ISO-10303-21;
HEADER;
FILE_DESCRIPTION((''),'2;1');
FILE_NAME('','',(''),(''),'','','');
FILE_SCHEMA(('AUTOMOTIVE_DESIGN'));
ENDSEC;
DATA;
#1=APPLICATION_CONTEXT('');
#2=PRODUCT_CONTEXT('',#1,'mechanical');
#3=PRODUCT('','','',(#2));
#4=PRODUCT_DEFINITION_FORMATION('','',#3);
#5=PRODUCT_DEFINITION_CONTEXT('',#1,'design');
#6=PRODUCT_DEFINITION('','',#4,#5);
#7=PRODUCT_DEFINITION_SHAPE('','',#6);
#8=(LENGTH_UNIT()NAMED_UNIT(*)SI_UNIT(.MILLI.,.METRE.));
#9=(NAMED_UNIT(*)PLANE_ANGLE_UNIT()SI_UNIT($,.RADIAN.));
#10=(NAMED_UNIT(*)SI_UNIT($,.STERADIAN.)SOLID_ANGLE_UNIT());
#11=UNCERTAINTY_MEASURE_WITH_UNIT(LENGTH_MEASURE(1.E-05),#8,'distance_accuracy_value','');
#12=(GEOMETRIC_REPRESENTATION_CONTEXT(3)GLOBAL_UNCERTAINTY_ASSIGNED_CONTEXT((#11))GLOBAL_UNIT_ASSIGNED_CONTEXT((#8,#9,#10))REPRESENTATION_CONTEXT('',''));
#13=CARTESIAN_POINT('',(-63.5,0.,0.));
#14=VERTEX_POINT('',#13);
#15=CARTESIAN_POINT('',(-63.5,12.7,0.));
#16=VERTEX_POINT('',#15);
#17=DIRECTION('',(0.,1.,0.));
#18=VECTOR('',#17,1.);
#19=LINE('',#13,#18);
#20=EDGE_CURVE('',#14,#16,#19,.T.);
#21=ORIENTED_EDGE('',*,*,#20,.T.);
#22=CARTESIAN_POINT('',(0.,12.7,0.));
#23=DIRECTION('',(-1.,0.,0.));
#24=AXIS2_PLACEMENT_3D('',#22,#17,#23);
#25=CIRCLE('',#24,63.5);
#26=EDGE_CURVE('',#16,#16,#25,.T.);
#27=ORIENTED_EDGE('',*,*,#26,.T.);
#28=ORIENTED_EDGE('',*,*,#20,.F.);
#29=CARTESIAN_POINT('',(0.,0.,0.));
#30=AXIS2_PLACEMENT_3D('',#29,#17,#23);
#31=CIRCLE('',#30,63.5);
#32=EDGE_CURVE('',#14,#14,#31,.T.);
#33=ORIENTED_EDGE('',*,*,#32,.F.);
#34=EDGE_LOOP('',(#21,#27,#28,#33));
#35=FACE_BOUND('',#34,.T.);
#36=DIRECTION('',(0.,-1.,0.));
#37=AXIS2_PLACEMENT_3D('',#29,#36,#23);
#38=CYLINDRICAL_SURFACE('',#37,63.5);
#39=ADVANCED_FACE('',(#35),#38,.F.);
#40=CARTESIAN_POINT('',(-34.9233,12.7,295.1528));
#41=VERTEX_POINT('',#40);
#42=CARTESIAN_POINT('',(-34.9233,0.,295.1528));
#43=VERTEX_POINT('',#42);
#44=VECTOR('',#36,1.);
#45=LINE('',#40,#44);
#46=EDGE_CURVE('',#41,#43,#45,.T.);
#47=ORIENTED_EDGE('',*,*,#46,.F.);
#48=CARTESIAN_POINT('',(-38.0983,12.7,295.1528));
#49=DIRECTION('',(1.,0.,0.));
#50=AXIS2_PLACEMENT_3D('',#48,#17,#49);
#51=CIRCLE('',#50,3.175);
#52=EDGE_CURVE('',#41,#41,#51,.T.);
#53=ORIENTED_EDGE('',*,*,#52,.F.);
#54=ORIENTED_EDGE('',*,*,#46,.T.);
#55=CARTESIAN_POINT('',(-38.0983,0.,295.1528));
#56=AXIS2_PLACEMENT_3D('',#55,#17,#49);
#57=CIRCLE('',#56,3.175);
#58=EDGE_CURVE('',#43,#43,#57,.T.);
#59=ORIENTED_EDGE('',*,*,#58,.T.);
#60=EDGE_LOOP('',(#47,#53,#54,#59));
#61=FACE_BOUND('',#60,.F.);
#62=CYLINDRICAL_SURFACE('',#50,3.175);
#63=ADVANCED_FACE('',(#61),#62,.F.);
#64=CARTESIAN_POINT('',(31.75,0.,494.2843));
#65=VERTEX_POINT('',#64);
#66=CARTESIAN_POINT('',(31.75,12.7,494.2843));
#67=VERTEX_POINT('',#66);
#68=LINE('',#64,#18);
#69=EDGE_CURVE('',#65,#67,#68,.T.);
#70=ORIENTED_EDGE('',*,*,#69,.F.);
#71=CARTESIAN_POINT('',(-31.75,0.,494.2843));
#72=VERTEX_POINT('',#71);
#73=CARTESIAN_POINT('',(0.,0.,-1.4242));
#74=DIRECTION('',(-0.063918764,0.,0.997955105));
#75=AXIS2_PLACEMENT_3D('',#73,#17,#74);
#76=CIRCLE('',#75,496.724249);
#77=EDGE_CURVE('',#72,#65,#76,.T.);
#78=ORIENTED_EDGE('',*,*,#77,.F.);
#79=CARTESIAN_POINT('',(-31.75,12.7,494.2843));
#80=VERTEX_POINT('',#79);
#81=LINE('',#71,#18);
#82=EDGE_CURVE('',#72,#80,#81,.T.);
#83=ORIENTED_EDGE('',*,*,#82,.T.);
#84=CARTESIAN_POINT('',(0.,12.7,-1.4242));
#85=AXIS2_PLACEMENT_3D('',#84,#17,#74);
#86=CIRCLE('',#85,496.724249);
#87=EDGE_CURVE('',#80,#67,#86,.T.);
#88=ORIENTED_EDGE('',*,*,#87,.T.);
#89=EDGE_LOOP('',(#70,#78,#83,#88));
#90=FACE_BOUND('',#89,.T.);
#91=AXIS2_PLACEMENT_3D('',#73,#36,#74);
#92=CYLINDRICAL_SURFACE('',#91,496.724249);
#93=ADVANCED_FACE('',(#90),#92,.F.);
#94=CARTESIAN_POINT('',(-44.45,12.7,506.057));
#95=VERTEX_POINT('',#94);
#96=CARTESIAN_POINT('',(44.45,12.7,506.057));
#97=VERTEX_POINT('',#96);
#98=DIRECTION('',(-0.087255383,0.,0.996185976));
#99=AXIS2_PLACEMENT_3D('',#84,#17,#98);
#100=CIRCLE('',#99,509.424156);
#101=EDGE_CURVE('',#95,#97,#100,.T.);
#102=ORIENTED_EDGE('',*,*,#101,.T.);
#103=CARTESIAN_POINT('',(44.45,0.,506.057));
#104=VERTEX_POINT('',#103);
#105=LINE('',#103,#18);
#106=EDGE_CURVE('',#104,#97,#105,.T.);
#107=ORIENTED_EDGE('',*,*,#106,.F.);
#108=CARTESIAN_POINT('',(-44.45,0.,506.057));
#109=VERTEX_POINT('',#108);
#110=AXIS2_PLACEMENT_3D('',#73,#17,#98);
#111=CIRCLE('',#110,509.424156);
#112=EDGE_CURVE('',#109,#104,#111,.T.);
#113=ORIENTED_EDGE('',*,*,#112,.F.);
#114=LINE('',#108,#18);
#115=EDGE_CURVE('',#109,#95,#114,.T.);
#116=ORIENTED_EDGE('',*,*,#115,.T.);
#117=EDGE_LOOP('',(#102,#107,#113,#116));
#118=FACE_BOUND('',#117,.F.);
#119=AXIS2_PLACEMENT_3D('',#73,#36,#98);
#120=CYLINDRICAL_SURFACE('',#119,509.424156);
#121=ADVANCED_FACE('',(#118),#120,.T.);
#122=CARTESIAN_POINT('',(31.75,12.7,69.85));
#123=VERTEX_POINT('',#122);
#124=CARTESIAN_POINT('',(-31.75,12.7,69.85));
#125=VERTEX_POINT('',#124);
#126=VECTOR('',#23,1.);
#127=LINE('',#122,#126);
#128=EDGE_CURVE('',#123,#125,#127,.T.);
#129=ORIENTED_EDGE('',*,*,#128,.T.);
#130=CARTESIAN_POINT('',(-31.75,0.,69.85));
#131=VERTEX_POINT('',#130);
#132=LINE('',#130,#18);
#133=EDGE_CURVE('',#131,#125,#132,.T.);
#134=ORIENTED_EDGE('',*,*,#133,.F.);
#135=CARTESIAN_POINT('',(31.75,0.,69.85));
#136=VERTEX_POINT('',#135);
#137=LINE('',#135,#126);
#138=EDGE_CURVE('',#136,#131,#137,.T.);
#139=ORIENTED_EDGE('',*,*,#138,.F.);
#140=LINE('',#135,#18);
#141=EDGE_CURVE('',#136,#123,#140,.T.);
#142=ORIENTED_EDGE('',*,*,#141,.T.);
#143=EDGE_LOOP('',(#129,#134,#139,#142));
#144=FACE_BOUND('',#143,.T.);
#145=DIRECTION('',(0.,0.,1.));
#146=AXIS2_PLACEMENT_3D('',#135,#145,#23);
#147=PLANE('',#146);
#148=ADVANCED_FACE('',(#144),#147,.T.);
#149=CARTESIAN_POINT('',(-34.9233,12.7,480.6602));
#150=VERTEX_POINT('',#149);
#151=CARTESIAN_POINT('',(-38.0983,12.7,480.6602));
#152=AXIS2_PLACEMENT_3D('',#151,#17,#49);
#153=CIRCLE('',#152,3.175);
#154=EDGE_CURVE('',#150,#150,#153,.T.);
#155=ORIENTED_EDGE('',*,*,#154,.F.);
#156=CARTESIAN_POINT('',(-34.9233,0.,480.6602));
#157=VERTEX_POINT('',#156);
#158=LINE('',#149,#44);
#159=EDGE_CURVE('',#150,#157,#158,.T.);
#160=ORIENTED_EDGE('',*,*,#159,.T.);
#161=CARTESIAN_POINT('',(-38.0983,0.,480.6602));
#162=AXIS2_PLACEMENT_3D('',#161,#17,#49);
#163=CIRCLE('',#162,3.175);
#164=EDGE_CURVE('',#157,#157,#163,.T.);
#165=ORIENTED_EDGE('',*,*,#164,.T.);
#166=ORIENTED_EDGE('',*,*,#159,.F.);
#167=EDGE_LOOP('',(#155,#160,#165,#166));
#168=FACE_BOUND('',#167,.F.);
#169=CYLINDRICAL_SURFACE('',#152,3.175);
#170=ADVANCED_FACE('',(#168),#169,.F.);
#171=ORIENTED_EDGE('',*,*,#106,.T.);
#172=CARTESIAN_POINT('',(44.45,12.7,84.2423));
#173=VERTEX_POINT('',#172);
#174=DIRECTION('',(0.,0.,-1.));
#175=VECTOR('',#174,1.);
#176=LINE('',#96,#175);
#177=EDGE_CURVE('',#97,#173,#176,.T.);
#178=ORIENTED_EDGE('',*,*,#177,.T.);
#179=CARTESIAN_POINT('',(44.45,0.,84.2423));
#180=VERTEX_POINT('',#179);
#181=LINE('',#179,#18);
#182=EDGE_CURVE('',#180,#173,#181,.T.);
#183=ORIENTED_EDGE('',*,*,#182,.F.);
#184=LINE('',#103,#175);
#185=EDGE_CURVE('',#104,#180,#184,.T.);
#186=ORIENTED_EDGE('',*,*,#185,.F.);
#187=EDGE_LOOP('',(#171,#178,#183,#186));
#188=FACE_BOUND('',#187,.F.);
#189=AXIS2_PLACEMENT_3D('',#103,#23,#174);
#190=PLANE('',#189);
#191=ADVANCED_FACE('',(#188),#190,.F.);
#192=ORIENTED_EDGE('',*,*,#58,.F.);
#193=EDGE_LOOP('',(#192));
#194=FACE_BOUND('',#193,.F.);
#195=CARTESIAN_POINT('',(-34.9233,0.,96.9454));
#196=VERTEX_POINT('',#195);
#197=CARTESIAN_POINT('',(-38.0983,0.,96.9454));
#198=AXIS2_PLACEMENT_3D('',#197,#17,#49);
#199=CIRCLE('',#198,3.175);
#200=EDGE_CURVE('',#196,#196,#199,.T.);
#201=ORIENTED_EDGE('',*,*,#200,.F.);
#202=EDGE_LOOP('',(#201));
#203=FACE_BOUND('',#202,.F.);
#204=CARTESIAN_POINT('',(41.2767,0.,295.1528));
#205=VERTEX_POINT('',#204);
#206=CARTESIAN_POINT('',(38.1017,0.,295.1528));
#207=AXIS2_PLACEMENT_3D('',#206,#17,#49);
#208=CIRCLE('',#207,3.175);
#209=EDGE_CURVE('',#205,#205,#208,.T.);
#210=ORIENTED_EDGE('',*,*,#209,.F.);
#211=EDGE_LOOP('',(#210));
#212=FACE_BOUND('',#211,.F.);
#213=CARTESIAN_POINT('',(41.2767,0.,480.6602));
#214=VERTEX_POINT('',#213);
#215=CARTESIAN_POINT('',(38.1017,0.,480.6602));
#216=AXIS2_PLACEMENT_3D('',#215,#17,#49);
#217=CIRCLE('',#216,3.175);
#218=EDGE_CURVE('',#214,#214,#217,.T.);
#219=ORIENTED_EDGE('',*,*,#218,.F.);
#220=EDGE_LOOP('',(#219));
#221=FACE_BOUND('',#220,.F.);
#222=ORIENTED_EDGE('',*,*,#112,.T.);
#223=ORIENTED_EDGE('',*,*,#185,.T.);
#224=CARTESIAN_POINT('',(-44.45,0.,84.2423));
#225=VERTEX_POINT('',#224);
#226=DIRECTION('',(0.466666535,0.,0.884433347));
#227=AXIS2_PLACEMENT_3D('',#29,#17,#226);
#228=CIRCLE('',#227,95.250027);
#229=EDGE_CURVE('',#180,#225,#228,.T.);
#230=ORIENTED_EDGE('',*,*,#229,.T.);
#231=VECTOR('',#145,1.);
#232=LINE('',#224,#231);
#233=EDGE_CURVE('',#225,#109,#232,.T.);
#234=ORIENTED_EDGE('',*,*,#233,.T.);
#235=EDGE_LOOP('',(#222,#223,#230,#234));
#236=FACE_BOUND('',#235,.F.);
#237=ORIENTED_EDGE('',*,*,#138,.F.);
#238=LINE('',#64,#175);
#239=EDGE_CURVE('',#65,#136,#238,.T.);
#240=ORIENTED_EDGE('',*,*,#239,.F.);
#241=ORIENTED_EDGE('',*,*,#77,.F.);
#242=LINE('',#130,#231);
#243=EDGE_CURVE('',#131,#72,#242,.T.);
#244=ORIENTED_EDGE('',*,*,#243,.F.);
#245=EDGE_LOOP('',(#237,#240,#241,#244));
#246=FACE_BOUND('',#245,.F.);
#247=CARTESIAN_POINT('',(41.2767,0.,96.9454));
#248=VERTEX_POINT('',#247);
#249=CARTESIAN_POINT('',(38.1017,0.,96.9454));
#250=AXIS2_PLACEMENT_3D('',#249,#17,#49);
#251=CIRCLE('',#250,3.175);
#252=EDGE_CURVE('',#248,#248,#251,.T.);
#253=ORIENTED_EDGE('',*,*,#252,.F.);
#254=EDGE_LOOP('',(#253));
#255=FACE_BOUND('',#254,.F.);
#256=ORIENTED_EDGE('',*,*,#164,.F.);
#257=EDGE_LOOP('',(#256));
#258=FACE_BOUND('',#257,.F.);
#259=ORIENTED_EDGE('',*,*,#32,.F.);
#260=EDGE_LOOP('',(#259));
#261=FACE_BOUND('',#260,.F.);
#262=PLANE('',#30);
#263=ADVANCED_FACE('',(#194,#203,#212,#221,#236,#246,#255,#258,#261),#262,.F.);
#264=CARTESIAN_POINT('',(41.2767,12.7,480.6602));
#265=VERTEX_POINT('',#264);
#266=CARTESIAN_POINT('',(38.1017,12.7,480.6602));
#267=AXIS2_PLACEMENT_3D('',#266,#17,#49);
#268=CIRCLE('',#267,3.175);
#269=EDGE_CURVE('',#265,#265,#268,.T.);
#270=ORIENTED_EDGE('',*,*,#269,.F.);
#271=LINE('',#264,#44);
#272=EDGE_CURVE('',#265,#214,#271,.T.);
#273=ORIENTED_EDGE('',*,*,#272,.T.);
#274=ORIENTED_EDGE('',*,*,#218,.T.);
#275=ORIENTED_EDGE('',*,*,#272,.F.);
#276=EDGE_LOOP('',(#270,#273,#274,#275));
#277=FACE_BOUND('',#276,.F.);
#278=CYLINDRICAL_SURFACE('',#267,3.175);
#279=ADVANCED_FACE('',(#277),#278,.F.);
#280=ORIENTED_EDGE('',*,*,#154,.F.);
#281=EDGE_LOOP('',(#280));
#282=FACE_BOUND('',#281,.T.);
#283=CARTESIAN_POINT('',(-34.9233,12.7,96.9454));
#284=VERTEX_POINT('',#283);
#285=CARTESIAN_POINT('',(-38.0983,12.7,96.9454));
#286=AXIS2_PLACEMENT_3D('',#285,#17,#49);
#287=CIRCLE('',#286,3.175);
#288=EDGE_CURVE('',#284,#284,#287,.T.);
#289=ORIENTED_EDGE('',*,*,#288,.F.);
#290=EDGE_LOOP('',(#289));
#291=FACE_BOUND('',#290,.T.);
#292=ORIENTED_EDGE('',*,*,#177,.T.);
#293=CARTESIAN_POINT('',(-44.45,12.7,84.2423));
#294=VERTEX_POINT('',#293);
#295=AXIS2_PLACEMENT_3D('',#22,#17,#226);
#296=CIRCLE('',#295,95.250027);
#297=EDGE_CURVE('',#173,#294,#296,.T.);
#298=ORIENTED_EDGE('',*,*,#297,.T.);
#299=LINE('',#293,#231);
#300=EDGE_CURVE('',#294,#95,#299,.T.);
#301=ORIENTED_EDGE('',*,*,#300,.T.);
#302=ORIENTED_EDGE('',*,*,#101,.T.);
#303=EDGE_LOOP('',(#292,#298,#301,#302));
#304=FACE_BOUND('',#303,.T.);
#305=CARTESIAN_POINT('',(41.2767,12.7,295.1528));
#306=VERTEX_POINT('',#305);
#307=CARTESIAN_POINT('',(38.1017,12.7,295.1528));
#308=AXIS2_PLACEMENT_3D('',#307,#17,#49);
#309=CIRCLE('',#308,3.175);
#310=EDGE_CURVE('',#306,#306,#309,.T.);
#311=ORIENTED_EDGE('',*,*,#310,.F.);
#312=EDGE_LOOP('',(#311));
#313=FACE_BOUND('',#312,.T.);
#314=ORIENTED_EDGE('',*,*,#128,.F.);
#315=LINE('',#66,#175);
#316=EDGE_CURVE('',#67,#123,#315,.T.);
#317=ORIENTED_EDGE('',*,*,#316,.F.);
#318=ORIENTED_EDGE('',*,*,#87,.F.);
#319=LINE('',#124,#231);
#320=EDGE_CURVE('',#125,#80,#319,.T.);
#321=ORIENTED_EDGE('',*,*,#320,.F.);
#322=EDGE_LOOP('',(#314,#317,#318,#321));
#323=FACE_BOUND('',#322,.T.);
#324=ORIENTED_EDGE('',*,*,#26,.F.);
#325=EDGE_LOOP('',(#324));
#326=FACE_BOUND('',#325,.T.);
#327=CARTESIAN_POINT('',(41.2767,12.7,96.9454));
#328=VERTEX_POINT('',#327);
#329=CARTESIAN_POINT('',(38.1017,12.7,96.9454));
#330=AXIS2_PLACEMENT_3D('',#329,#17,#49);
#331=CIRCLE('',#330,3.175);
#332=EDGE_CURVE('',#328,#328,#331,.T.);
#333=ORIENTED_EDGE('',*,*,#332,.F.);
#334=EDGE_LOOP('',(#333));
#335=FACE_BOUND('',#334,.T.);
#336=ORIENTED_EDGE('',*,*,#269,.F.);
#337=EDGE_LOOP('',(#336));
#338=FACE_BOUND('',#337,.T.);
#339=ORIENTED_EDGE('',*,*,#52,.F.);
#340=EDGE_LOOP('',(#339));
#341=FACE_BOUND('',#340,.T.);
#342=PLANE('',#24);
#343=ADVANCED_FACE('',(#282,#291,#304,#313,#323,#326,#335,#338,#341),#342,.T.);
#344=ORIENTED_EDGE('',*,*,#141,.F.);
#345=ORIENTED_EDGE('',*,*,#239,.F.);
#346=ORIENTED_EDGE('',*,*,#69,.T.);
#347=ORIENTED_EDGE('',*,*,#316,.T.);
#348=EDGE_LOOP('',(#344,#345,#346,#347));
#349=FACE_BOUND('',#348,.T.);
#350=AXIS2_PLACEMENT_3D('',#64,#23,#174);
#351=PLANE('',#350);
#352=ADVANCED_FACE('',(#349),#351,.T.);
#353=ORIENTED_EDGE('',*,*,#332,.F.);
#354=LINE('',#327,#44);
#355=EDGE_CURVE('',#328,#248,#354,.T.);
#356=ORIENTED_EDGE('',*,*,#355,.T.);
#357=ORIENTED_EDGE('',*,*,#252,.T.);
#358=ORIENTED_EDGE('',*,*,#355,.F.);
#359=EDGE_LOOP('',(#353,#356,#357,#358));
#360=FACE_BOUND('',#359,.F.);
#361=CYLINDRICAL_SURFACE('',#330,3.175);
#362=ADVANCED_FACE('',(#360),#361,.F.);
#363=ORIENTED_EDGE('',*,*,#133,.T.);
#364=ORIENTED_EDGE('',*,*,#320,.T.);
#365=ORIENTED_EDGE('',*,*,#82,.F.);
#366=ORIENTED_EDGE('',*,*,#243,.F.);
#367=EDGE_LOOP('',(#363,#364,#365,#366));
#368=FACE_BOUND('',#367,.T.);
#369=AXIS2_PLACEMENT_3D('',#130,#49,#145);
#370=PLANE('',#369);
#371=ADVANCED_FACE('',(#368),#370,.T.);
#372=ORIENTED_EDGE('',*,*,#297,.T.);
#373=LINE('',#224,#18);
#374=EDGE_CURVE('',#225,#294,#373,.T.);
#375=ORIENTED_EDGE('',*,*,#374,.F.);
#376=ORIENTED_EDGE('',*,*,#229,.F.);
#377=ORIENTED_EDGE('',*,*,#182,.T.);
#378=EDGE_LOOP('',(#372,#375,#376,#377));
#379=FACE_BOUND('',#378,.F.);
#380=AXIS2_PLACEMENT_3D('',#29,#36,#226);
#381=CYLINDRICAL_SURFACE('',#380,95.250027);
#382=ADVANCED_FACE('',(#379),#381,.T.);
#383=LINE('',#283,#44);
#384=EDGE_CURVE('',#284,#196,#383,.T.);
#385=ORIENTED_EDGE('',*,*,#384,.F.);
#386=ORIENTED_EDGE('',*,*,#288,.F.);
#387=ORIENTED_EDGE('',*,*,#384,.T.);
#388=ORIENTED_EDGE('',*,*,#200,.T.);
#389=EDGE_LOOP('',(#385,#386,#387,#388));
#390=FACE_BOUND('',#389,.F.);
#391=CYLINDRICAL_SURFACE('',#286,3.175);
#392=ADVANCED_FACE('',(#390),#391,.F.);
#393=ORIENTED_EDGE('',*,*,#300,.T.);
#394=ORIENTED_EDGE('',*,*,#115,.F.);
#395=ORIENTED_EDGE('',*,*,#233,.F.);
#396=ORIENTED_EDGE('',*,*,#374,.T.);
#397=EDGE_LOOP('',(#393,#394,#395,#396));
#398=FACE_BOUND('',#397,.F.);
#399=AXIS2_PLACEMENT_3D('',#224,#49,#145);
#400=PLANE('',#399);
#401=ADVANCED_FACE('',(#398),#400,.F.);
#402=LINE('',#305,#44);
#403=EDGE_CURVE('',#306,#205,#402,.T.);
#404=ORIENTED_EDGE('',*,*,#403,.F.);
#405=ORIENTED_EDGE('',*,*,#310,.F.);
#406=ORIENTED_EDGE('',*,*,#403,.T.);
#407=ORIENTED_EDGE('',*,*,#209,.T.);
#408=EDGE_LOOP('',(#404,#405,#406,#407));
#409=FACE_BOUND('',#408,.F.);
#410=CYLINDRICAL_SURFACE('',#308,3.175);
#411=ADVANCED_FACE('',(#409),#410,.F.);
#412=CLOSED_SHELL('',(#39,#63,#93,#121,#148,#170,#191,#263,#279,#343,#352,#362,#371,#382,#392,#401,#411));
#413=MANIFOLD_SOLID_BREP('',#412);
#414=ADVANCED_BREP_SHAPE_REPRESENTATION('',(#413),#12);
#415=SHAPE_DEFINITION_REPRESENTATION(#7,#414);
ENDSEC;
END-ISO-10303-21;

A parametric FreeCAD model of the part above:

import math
import FreeCAD as App
import Part
import Sketcher
Q = App.Units.Quantity

doc = App.newDocument("Part")
body = doc.addObject("PartDesign::Body", "Body")

# Sketch on XZ plane
sketch1 = body.newObject("Sketcher::SketchObject", "Sketch")
sketch1.AttachmentSupport = (doc.getObject("XZ_Plane"), [""])
sketch1.MapMode = "FlatFace"
sketch1.addGeometry([
    Part.LineSegment(App.Vector(-44.45, 84.2423, 0), App.Vector(-44.45, 506.057, 0)),  # 0
    Part.ArcOfCircle(Part.Circle(App.Vector(0, -1.4242, 0), App.Vector(0, 0, 1), 509.424156), math.radians(84.994269), math.radians(95.005731)),  # 1
    Part.LineSegment(App.Vector(44.45, 506.057, 0), App.Vector(44.45, 84.2423, 0)),  # 2
    Part.ArcOfCircle(Part.Circle(App.Vector(0, 0, 0), App.Vector(0, 0, 1), 95.250027), math.radians(117.818131), math.radians(422.181869)),  # 3
    Part.Circle(App.Vector(0, 0, 0), App.Vector(0, 0, 1), 63.5),  # 4
    Part.ArcOfCircle(Part.Circle(App.Vector(0, -1.4242, 0), App.Vector(0, 0, 1), 496.724249), math.radians(86.335226), math.radians(93.664774)),  # 5
    Part.LineSegment(App.Vector(-31.75, 494.2843, 0), App.Vector(-31.75, 69.85, 0)),  # 6
    Part.LineSegment(App.Vector(-31.75, 69.85, 0), App.Vector(31.75, 69.85, 0)),  # 7
    Part.LineSegment(App.Vector(31.75, 69.85, 0), App.Vector(31.75, 494.2843, 0)),  # 8
], False)
sketch1.addConstraint([
    Sketcher.Constraint("Coincident", 0, 2, 1, 2),
    Sketcher.Constraint("Coincident", 1, 1, 2, 1),
    Sketcher.Constraint("Coincident", 2, 2, 3, 2),
    Sketcher.Constraint("Coincident", 3, 1, 0, 1),
    Sketcher.Constraint("Coincident", 5, 2, 6, 1),
    Sketcher.Constraint("Coincident", 6, 2, 7, 1),
    Sketcher.Constraint("Coincident", 7, 2, 8, 1),
    Sketcher.Constraint("Coincident", 8, 2, 5, 1),
    Sketcher.Constraint("Vertical", 0),
    Sketcher.Constraint("Vertical", 2),
    Sketcher.Constraint("Vertical", 6),
    Sketcher.Constraint("Horizontal", 7),
    Sketcher.Constraint("Vertical", 8),
    Sketcher.Constraint("Coincident", 3, 3, -1, 1),
    Sketcher.Constraint("Coincident", 4, 3, -1, 1),
    Sketcher.Constraint("Coincident", 5, 3, 1, 3),
    Sketcher.Constraint("PointOnObject", 1, 3, -2),
    Sketcher.Constraint("Horizontal", 2, 2, 3, 1),
    Sketcher.Constraint("Equal", 6, 8),
    Sketcher.Constraint("Diameter", 4, Q("5 in")),
    Sketcher.Constraint("Radius", 3, Q("3.75 in")),
    Sketcher.Constraint("DistanceX", 3, 1, 2, 2, Q("3.5 in")),
    Sketcher.Constraint("DistanceX", 3, 1, 6, 2, Q("0.5 in")),
    Sketcher.Constraint("DistanceY", 6, 2, 6, 1, Q("16.71 in")),
    Sketcher.Constraint("DistanceY", -1, 1, 5, 2, Q("19.46 in")),
    Sketcher.Constraint("Radius", 1, Q("509.4242 mm")),
    Sketcher.Constraint("Radius", 5, Q("496.7242 mm")),
])
pad1 = body.newObject("PartDesign::Pad", "Pad")
pad1.Profile = sketch1
pad1.Length = Q("0.5 in")
pad1.Reversed = True

# Sketch on XZ plane
sketch2 = body.newObject("Sketcher::SketchObject", "Sketch001")
sketch2.AttachmentSupport = (doc.getObject("XZ_Plane"), [""])
sketch2.MapMode = "FlatFace"
sketch2.AttachmentOffset = App.Placement(App.Vector(0, 0, -0.5 * 25.4), App.Rotation())
sketch2.addGeometry([
    Part.Circle(App.Vector(-38.0983, 96.9454, 0), App.Vector(0, 0, 1), 3.175),  # 0
    Part.Circle(App.Vector(-38.0983, 480.6602, 0), App.Vector(0, 0, 1), 3.175),  # 1
    Part.Circle(App.Vector(-38.0983, 295.1528, 0), App.Vector(0, 0, 1), 3.175),  # 2
    Part.Circle(App.Vector(38.1017, 295.1528, 0), App.Vector(0, 0, 1), 3.175),  # 3
    Part.Circle(App.Vector(38.1017, 96.9454, 0), App.Vector(0, 0, 1), 3.175),  # 4
    Part.Circle(App.Vector(38.1017, 480.6602, 0), App.Vector(0, 0, 1), 3.175),  # 5
], False)
sketch2.addConstraint([
    Sketcher.Constraint("Equal", 0, 1),
    Sketcher.Constraint("Equal", 1, 2),
    Sketcher.Constraint("Equal", 2, 3),
    Sketcher.Constraint("Equal", 3, 4),
    Sketcher.Constraint("Equal", 4, 5),
    Sketcher.Constraint("Horizontal", 2, 3, 3, 3),
    Sketcher.Constraint("Horizontal", 0, 3, 4, 3),
    Sketcher.Constraint("Horizontal", 1, 3, 5, 3),
    Sketcher.Constraint("Vertical", 0, 3, 1, 3),
    Sketcher.Constraint("Vertical", 1, 3, 2, 3),
    Sketcher.Constraint("Vertical", 3, 3, 4, 3),
    Sketcher.Constraint("Vertical", 4, 3, 5, 3),
    Sketcher.Constraint("Diameter", 0, Q("0.25 in")),
    Sketcher.Constraint("DistanceX", 2, 3, 3, 3, Q("3 in")),
    Sketcher.Constraint("DistanceY", -1, 1, 2, 3, Q("11.6202 in")),
    Sketcher.Constraint("DistanceX", 0, 3, -1, 1, Q("38.0983 mm")),
    Sketcher.Constraint("DistanceY", -1, 1, 0, 3, Q("96.9454 mm")),
    Sketcher.Constraint("DistanceY", -1, 1, 1, 3, Q("480.6602 mm")),
])
pocket1 = body.newObject("PartDesign::Pocket", "Pocket")
pocket1.Profile = sketch2
pocket1.Length = Q("0.5 in")
pocket1.Reversed = True

doc.recompute()
